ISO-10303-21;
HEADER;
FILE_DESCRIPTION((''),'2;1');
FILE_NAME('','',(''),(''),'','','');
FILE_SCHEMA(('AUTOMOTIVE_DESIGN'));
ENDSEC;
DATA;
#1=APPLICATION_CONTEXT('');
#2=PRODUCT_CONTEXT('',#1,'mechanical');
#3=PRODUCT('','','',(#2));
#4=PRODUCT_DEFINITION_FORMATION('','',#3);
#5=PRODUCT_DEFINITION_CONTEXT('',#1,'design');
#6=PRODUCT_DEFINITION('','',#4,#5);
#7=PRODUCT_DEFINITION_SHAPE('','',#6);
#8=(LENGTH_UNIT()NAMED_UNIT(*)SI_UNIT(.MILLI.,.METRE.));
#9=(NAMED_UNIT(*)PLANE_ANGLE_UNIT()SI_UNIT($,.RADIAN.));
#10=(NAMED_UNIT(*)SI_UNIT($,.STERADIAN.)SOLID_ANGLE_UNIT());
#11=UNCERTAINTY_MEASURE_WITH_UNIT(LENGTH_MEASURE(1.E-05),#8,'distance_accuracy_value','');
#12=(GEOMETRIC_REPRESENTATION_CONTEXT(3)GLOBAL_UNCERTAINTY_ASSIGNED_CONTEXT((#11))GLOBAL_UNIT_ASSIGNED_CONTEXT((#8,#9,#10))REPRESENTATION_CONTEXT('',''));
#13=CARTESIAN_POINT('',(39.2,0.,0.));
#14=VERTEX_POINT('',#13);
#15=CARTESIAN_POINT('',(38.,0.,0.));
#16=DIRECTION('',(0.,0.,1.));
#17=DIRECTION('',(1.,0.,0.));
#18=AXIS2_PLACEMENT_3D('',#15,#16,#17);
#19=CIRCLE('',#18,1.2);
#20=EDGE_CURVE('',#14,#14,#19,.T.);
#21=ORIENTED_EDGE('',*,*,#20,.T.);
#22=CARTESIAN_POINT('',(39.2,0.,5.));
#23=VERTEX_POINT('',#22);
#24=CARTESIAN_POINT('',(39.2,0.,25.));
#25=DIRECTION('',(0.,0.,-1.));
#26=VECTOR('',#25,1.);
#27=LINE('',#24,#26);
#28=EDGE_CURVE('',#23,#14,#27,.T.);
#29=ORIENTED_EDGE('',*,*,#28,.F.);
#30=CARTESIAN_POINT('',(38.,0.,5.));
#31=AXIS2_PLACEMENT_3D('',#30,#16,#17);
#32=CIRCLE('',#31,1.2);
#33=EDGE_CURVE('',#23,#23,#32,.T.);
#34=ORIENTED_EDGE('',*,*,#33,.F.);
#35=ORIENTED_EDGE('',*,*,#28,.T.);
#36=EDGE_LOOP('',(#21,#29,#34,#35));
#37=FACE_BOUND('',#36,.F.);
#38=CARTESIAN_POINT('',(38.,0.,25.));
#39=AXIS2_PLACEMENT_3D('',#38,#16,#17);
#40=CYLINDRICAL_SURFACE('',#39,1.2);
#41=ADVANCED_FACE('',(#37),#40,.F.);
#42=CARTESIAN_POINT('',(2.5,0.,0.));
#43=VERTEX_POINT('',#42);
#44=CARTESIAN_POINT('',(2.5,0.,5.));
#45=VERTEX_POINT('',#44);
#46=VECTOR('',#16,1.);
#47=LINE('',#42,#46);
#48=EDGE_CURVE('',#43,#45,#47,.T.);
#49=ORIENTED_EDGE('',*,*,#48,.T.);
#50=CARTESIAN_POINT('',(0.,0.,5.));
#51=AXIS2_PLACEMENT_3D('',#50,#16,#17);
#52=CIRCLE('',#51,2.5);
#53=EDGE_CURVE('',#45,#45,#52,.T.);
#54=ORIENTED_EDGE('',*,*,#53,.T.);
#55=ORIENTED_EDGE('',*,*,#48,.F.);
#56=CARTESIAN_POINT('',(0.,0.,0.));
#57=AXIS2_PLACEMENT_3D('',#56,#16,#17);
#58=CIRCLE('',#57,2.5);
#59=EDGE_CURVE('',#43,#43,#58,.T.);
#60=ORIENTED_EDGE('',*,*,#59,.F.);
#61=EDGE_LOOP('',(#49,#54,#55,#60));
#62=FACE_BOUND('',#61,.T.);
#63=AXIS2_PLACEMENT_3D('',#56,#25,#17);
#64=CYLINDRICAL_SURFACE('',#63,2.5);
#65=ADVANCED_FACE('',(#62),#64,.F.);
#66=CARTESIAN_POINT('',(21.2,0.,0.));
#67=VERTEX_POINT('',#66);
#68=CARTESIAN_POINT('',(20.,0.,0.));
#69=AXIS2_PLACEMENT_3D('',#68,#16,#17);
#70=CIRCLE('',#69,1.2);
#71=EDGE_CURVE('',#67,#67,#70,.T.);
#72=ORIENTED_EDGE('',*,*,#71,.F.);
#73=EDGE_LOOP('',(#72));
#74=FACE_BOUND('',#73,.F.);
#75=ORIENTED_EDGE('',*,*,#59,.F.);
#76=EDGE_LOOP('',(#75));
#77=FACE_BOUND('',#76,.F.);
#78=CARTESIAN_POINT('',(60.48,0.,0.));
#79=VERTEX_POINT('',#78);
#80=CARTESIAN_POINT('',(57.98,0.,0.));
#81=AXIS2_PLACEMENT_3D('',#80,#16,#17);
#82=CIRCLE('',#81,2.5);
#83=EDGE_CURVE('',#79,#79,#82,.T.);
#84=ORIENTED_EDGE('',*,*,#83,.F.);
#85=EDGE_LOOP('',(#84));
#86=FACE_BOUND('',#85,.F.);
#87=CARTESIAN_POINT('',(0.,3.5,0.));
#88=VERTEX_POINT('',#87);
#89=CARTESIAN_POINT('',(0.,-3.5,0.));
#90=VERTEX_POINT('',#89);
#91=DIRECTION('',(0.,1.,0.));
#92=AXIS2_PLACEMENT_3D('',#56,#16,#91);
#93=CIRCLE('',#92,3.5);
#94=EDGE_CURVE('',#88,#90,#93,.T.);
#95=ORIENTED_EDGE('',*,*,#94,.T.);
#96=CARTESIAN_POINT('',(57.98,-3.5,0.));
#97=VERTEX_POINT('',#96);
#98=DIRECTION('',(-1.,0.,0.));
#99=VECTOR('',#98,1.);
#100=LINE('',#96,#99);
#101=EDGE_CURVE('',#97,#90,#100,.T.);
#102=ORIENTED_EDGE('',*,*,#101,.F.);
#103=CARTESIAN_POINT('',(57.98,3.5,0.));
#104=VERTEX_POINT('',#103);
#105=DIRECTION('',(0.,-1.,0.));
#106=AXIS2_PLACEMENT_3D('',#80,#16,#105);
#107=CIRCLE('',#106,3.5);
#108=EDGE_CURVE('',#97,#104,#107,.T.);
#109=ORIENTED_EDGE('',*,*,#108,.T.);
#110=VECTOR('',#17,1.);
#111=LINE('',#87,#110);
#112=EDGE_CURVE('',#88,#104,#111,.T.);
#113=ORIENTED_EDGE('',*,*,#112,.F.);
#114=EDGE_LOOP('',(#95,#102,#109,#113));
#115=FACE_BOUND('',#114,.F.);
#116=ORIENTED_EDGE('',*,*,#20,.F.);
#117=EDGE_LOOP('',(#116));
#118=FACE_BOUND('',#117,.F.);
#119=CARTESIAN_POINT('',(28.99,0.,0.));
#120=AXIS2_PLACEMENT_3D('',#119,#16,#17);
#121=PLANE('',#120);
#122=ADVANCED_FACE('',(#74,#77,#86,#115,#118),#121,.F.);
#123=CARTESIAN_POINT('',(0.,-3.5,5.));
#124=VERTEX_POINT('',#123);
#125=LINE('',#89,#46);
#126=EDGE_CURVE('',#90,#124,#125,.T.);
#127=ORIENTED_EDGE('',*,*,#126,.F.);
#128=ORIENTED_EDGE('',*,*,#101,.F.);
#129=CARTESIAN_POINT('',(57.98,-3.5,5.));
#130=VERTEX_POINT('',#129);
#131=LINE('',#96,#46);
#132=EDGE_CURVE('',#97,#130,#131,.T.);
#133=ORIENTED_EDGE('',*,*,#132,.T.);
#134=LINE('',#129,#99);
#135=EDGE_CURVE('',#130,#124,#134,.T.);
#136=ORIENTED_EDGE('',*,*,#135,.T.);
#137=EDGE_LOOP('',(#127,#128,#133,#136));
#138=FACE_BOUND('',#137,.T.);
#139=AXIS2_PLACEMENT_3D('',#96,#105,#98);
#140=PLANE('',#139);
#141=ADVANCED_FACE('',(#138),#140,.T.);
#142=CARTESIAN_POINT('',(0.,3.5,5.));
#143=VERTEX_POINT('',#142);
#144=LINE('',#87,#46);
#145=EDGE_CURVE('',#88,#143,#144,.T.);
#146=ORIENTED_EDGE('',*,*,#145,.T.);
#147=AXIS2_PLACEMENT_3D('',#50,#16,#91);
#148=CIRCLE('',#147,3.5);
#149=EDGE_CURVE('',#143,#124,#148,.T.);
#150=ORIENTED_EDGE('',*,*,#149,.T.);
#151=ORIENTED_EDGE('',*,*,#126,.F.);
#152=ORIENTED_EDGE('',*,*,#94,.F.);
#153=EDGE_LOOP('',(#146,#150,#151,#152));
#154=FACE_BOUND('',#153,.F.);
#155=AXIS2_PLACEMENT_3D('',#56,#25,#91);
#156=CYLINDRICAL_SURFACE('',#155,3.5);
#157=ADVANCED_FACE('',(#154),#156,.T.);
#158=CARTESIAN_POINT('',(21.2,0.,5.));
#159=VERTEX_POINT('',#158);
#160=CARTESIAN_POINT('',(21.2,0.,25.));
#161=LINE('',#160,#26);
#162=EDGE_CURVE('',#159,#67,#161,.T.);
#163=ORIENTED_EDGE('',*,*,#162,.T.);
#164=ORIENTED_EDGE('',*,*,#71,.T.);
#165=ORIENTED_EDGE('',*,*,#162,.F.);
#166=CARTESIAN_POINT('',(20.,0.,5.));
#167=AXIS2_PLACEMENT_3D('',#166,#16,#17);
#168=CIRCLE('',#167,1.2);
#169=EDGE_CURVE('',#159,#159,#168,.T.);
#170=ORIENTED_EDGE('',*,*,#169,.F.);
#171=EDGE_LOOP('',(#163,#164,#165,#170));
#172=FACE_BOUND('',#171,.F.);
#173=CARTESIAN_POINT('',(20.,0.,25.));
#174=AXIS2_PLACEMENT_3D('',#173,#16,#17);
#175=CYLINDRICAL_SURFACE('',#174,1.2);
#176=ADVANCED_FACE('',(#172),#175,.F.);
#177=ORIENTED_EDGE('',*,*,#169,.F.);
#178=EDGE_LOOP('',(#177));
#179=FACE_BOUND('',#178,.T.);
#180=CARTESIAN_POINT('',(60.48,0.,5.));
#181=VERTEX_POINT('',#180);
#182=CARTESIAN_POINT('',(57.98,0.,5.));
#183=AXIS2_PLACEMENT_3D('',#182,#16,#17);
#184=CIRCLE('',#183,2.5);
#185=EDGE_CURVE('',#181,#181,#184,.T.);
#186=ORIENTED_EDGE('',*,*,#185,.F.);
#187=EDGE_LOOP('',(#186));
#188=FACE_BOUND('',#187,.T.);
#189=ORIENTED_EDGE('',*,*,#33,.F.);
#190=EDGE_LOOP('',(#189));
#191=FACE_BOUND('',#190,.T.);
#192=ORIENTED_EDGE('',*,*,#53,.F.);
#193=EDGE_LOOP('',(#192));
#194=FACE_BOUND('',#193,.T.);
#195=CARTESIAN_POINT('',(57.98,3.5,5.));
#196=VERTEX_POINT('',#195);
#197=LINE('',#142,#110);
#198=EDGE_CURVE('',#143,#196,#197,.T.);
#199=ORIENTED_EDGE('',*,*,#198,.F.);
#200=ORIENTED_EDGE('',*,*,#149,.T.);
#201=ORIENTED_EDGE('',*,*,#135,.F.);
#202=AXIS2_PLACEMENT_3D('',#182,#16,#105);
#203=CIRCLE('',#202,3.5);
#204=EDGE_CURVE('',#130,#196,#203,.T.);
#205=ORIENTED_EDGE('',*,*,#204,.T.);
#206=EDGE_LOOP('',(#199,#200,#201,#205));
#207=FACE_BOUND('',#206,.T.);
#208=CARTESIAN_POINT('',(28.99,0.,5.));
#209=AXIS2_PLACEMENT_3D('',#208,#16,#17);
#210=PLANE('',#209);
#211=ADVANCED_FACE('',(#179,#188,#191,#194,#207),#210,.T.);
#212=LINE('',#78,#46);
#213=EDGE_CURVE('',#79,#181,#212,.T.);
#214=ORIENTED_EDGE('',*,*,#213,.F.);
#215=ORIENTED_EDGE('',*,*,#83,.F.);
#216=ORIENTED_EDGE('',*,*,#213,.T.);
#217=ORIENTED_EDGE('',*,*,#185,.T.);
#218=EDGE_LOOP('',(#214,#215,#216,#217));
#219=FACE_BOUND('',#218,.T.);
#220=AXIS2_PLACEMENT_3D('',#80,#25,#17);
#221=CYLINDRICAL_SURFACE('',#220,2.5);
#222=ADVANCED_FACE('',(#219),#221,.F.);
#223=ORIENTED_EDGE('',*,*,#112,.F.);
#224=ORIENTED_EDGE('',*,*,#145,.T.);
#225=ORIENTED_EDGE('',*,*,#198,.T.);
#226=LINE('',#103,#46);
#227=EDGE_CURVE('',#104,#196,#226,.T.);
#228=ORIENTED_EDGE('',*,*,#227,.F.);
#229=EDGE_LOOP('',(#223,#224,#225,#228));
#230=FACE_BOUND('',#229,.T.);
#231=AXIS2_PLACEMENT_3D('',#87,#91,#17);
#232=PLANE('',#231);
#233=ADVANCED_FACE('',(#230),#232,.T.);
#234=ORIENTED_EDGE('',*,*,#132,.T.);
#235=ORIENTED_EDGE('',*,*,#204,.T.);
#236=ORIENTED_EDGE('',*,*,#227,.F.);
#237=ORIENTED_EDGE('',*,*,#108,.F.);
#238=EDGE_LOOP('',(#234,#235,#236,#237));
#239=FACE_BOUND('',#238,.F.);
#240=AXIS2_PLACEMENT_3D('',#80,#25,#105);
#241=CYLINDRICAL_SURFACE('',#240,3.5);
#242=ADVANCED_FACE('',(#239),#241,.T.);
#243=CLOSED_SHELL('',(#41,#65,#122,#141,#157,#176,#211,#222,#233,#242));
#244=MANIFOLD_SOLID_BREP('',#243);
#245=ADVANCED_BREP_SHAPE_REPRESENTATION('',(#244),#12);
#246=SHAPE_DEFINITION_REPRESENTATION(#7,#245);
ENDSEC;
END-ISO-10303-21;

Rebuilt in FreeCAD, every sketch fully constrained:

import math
import FreeCAD as App
import Part
import Sketcher
from FreeCAD import Vector

doc = App.newDocument("Part")
params = doc.addObject("Spreadsheet::Sheet", "Params")
for row, (alias, value) in enumerate([
    ("sketch1_diameter", "5 mm"),
    ("sketch1_radius", "3.5 mm"),
    ("sketch1_width", "57.98 mm"),
    ("pad1_length", "5 mm"),
    ("sketch2_diameter", "2.4 mm"),
], start=1):
    params.set(f"A{row}", alias)
    params.set(f"B{row}", "=" + value)
    params.setAlias(f"B{row}", alias)

body = doc.addObject("PartDesign::Body", "Body")

# Sketch on XY plane
sketch1 = body.newObject("Sketcher::SketchObject", "Sketch")
sketch1.AttachmentSupport = (doc.getObject("XY_Plane"), [""])
sketch1.MapMode = "FlatFace"
sketch1.addGeometry([
    Part.ArcOfCircle(Part.Circle(Vector(0, 0, 0), Vector(0, 0, 1), 3.5), math.radians(90), math.radians(270)),  # 0
    Part.LineSegment(Vector(0, -3.5, 0), Vector(57.98, -3.5, 0)),  # 1
    Part.ArcOfCircle(Part.Circle(Vector(57.98, 0, 0), Vector(0, 0, 1), 3.5), math.radians(-90), math.radians(90)),  # 2
    Part.LineSegment(Vector(57.98, 3.5, 0), Vector(0, 3.5, 0)),  # 3
    Part.Circle(Vector(0, 0, 0), Vector(0, 0, 1), 2.5),  # 4
    Part.Circle(Vector(57.98, 0, 0), Vector(0, 0, 1), 2.5),  # 5
], False)
sketch1.addConstraint([
    Sketcher.Constraint("Tangent", 0, 2, 1, 1),
    Sketcher.Constraint("Tangent", 1, 2, 2, 1),
    Sketcher.Constraint("Tangent", 2, 2, 3, 1),
    Sketcher.Constraint("Tangent", 3, 2, 0, 1),
    Sketcher.Constraint("Horizontal", 1),
    Sketcher.Constraint("Horizontal", 3),
    Sketcher.Constraint("Coincident", 0, 3, -1, 1),
    Sketcher.Constraint("Coincident", 4, 3, -1, 1),
    Sketcher.Constraint("Coincident", 5, 3, 2, 3),
    Sketcher.Constraint("Equal", 4, 5),
    Sketcher.Constraint("Diameter", 4, 5.0),
    Sketcher.Constraint("Radius", 0, 3.5),
    Sketcher.Constraint("DistanceX", 1, 1, 1, 2, 57.98),
])
sketch1.setExpression("Constraints[10]", "Params.sketch1_diameter")
sketch1.setExpression("Constraints[11]", "Params.sketch1_radius")
sketch1.setExpression("Constraints[12]", "Params.sketch1_width")
pad1 = body.newObject("PartDesign::Pad", "Pad")
pad1.Profile = sketch1
pad1.setExpression("Length", "Params.pad1_length")

# Sketch on XY plane
sketch2 = body.newObject("Sketcher::SketchObject", "Sketch001")
sketch2.AttachmentSupport = (doc.getObject("XY_Plane"), [""])
sketch2.MapMode = "FlatFace"
sketch2.AttachmentOffset = App.Placement(Vector(0, 0, 25), App.Rotation())
sketch2.addGeometry([
    Part.Circle(Vector(20, 0, 0), Vector(0, 0, 1), 1.2),
    Part.Circle(Vector(38, 0, 0), Vector(0, 0, 1), 1.2),
], False)
sketch2.addConstraint([
    Sketcher.Constraint("Equal", 0, 1),
    Sketcher.Constraint("PointOnObject", 0, 3, -1),
    Sketcher.Constraint("PointOnObject", 1, 3, -1),
    Sketcher.Constraint("Diameter", 0, 2.4),
    Sketcher.Constraint("DistanceX", -1, 1, 0, 3, 20.0),
    Sketcher.Constraint("DistanceX", -1, 1, 1, 3, 38.0),
])
sketch2.setExpression("Constraints[3]", "Params.sketch2_diameter")
pocket1 = body.newObject("PartDesign::Pocket", "Pocket")
pocket1.Profile = sketch2
pocket1.Type = "ThroughAll"

doc.recompute()
